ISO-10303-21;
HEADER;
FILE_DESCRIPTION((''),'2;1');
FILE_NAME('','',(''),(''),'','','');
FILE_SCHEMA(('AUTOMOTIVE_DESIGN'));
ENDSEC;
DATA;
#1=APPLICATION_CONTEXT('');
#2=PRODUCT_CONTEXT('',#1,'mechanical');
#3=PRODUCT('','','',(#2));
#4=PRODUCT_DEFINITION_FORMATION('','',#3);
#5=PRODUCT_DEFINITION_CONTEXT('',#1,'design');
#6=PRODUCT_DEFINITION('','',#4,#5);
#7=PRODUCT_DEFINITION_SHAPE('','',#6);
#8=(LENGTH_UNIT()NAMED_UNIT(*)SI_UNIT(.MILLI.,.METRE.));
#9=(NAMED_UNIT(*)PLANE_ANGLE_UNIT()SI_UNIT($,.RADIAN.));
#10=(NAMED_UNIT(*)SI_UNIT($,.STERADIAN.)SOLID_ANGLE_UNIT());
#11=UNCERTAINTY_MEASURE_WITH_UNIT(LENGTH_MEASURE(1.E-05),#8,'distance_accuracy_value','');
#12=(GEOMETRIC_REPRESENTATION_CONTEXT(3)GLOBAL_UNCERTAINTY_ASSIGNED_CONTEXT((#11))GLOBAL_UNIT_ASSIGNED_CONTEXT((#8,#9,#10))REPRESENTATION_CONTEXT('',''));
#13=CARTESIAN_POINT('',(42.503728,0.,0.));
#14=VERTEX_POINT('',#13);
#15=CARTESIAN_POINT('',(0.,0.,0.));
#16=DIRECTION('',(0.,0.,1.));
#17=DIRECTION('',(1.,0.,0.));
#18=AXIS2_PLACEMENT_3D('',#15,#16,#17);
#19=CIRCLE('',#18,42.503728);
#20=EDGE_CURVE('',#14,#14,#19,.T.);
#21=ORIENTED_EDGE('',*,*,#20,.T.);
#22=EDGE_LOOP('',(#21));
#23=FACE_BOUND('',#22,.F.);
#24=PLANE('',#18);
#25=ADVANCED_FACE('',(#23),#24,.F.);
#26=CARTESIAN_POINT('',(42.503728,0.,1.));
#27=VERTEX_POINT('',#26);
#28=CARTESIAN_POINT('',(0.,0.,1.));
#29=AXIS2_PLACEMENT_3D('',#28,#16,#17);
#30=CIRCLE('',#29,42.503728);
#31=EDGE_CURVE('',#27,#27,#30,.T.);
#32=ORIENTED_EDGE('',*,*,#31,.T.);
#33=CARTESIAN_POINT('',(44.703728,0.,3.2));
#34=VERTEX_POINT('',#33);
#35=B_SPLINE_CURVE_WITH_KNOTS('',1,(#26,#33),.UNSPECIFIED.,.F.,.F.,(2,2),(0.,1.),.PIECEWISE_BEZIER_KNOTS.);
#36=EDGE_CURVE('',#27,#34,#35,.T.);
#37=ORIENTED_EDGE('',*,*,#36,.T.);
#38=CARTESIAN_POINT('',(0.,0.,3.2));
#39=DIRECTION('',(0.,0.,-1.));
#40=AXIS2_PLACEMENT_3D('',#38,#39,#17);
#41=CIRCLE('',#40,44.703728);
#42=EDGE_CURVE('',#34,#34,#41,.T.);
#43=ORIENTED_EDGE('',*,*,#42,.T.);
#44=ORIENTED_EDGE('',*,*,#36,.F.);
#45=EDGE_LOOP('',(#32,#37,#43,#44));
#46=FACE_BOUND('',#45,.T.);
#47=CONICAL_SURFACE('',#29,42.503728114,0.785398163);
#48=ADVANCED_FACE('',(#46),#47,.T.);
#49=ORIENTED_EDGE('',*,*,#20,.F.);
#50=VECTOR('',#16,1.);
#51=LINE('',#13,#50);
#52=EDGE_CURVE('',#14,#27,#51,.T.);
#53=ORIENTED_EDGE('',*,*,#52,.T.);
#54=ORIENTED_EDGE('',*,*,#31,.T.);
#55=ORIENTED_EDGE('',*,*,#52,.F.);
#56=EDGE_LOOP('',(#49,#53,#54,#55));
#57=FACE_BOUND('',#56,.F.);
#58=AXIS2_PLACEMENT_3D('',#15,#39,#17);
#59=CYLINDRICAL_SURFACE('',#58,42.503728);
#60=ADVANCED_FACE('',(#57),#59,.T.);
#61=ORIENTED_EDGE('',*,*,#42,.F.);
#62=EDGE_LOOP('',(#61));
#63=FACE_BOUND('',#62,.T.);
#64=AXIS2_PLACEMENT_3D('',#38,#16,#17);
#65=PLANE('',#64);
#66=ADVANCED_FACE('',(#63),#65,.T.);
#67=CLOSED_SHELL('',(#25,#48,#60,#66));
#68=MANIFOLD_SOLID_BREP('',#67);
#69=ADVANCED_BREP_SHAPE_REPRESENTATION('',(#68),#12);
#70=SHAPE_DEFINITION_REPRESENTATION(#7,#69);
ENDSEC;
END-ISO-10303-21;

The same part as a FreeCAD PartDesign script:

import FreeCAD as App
import Part
import Sketcher
Q = App.Units.Quantity

doc = App.newDocument("Part")
body = doc.addObject("PartDesign::Body", "Body")

sketch1 = doc.addObject("Sketcher::SketchObject", "Sketch")
body.addObject(sketch1)
sketch1.AttachmentSupport = (doc.XY_Plane, [""])
sketch1.MapMode = "FlatFace"
sketch1.addGeometry(Part.Circle(App.Vector(0, 0, 0), App.Vector(0, 0, 1), 43), False)
sketch1.addConstraint(Sketcher.Constraint("Coincident", 0, 3, -1, 1))
sketch1.addConstraint(Sketcher.Constraint("Diameter", 0, Q("85.007456 mm")))
pad1 = doc.addObject("PartDesign::Pad", "Pad")
body.addObject(pad1)
pad1.Profile = sketch1
pad1.Length = 1

sketch2 = doc.addObject("Sketcher::SketchObject", "Sketch001")
body.addObject(sketch2)
sketch2.AttachmentSupport = (doc.XY_Plane, [""])
sketch2.MapMode = "FlatFace"
sketch2.AttachmentOffset = App.Placement(App.Vector(0, 0, 1), App.Rotation())
sketch2.addGeometry(Part.Circle(App.Vector(0, 0, 0), App.Vector(0, 0, 1), 43), False)
sketch2.addConstraint(Sketcher.Constraint("Coincident", 0, 3, -1, 1))
sketch2.addConstraint(Sketcher.Constraint("Diameter", 0, Q("85.007456 mm")))
pad2 = doc.addObject("PartDesign::Pad", "Pad001")
body.addObject(pad2)
pad2.Profile = sketch2
pad2.Length = 2.2
pad2.TaperAngle = 45

doc.recompute()
